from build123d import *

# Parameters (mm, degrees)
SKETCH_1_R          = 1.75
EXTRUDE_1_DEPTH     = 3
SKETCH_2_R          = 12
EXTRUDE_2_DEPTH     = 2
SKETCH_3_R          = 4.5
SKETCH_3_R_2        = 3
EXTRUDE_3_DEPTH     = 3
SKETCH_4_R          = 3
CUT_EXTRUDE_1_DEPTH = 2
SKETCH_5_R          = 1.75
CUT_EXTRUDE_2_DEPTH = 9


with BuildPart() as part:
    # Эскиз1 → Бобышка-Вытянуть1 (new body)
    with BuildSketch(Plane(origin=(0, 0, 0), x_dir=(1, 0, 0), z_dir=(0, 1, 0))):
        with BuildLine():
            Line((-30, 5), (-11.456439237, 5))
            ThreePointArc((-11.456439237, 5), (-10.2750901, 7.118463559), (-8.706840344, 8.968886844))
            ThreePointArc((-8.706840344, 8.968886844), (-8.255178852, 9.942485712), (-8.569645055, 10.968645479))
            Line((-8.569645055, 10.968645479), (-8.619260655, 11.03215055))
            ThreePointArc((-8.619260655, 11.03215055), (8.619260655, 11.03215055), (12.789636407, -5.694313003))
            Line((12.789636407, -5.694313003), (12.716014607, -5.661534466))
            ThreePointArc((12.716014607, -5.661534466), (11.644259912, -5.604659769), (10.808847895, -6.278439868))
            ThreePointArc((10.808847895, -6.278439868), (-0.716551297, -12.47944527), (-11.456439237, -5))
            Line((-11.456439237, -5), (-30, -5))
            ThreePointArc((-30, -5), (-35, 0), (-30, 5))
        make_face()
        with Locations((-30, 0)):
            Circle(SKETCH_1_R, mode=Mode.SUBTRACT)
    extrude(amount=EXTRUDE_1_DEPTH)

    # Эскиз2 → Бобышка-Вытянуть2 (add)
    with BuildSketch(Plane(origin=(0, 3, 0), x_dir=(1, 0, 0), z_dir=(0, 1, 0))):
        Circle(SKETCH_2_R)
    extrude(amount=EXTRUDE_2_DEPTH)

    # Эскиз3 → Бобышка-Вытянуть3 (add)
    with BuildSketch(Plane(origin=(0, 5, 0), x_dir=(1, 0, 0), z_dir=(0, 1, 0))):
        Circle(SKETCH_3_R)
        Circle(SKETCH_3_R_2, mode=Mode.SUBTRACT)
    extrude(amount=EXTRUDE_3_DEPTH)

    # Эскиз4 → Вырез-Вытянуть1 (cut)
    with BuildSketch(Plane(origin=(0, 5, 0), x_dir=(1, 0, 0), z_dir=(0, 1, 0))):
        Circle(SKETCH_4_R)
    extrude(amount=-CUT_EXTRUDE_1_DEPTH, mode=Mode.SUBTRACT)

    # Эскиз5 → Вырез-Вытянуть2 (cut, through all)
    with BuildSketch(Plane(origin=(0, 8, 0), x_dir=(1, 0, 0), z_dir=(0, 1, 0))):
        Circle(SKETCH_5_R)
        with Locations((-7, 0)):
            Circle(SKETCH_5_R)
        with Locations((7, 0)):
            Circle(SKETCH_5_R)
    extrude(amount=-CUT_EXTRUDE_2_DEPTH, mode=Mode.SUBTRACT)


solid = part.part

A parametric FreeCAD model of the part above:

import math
import FreeCAD as App
import Part
import Sketcher

V = App.Vector
Q = App.Units.Quantity

doc = App.newDocument("Part")
body = doc.addObject("PartDesign::Body", "Body")

sketch1 = body.newObject("Sketcher::SketchObject", "Sketch")
sketch1.AttachmentSupport = (doc.getObject("XZ_Plane"), [""])
sketch1.MapMode = "FlatFace"
sketch1.addGeometry([
    Part.LineSegment(V(-11.46, -5, 0), V(-30, -5, 0)),
    Part.ArcOfCircle(Part.Circle(V(-30, 0, 0), V(0, 0, 1), 5), math.radians(90), math.radians(270)),
    Part.LineSegment(V(-30, 5, 0), V(-11.46, 5, 0)),
    Part.ArcOfCircle(Part.Circle(V(0, 0, 0), V(0, 0, 1), 12.5), math.radians(30), math.radians(156)),
    Part.ArcOfCircle(Part.Circle(V(12.11, 7.03, 0), V(0, 0, 1), 1.5), math.radians(-150), math.radians(-66)),
    Part.LineSegment(V(12.72, 5.66, 0), V(12.79, 5.69, 0)),
    Part.ArcOfCircle(Part.Circle(V(0, 0, 0), V(0, 0, 1), 14), math.radians(-128), math.radians(24)),
    Part.LineSegment(V(-8.62, -11.03, 0), V(-8.57, -10.97, 0)),
    Part.ArcOfCircle(Part.Circle(V(-9.75, -10.05, 0), V(0, 0, 1), 1.5), math.radians(-38), math.radians(46)),
    Part.ArcOfCircle(Part.Circle(V(0, 0, 0), V(0, 0, 1), 12.5), math.radians(-156), math.radians(-134)),
    Part.Circle(V(-30, 0, 0), V(0, 0, 1), 1.75),
], False)
sketch1.addConstraint([
    Sketcher.Constraint("Tangent", 0, 2, 1, 2),
    Sketcher.Constraint("Tangent", 1, 1, 2, 1),
    Sketcher.Constraint("Coincident", 2, 2, 3, 2),
    Sketcher.Constraint("Tangent", 3, 1, 4, 1),
    Sketcher.Constraint("Tangent", 4, 2, 5, 1),
    Sketcher.Constraint("Coincident", 5, 2, 6, 2),
    Sketcher.Constraint("Coincident", 6, 1, 7, 1),
    Sketcher.Constraint("Tangent", 7, 2, 8, 1),
    Sketcher.Constraint("Tangent", 8, 2, 9, 2),
    Sketcher.Constraint("Coincident", 9, 1, 0, 1),
    Sketcher.Constraint("Horizontal", 0),
    Sketcher.Constraint("Horizontal", 2),
    Sketcher.Constraint("Coincident", 3, 3, -1, 1),
    Sketcher.Constraint("Coincident", 6, 3, -1, 1),
    Sketcher.Constraint("Coincident", 9, 3, -1, 1),
    Sketcher.Constraint("Coincident", 10, 3, 1, 3),
    Sketcher.Constraint("Equal", 4, 8),
    Sketcher.Constraint("Equal", 3, 9),
    Sketcher.Constraint("PointOnObject", 1, 3, -1),
    Sketcher.Constraint("Equal", 5, 7),
    Sketcher.Constraint("Radius", 1, 5.0),
    Sketcher.Constraint("Radius", 6, 14.0),
    Sketcher.Constraint("Diameter", 10, 3.5),
    Sketcher.Constraint("Radius", 3, 12.5),
    Sketcher.Constraint("Radius", 4, 1.5),
    Sketcher.Constraint("Angle", 5, Q("24 deg")),
    Sketcher.Constraint("Angle", 7, Q("52 deg")),
    Sketcher.Constraint("DistanceX", 1, 3, -1, 1, 30.0),
    Sketcher.Constraint("DistanceX", 8, 3, 6, 1, 1.132401),
])
pad1 = body.newObject("PartDesign::Pad", "Pad")
pad1.Profile = sketch1
pad1.Length = 3
pad1.Reversed = True

sketch2 = body.newObject("Sketcher::SketchObject", "Sketch001")
sketch2.AttachmentSupport = (doc.getObject("XZ_Plane"), [""])
sketch2.MapMode = "FlatFace"
sketch2.AttachmentOffset = App.Placement(V(0, 0, -3), App.Rotation())
sketch2.addGeometry(Part.Circle(V(0, 0, 0), V(0, 0, 1), 12), False)
sketch2.addConstraint([
    Sketcher.Constraint("Coincident", 0, 3, -1, 1),
    Sketcher.Constraint("Diameter", 0, 24.0),
])
pad2 = body.newObject("PartDesign::Pad", "Pad001")
pad2.Profile = sketch2
pad2.Length = 2
pad2.Reversed = True

sketch3 = body.newObject("Sketcher::SketchObject", "Sketch002")
sketch3.AttachmentSupport = (doc.getObject("XZ_Plane"), [""])
sketch3.MapMode = "FlatFace"
sketch3.AttachmentOffset = App.Placement(V(0, 0, -5), App.Rotation())
sketch3.addGeometry([
    Part.Circle(V(0, 0, 0), V(0, 0, 1), 4.5),
    Part.Circle(V(0, 0, 0), V(0, 0, 1), 3),
], False)
sketch3.addConstraint([
    Sketcher.Constraint("Coincident", 0, 3, -1, 1),
    Sketcher.Constraint("Coincident", 1, 3, -1, 1),
    Sketcher.Constraint("Diameter", 0, 9.0),
    Sketcher.Constraint("Diameter", 1, 6.0),
])
pad3 = body.newObject("PartDesign::Pad", "Pad002")
pad3.Profile = sketch3
pad3.Length = 3
pad3.Reversed = True

sketch4 = body.newObject("Sketcher::SketchObject", "Sketch003")
sketch4.AttachmentSupport = (doc.getObject("XZ_Plane"), [""])
sketch4.MapMode = "FlatFace"
sketch4.AttachmentOffset = App.Placement(V(0, 0, -5), App.Rotation())
sketch4.addGeometry(Part.Circle(V(0, 0, 0), V(0, 0, 1), 3), False)
sketch4.addConstraint([
    Sketcher.Constraint("Coincident", 0, 3, -1, 1),
    Sketcher.Constraint("Diameter", 0, 6.0),
])
pocket1 = body.newObject("PartDesign::Pocket", "Pocket")
pocket1.Profile = sketch4
pocket1.Length = 2
pocket1.Reversed = True

sketch5 = body.newObject("Sketcher::SketchObject", "Sketch004")
sketch5.AttachmentSupport = (doc.getObject("XZ_Plane"), [""])
sketch5.MapMode = "FlatFace"
sketch5.AttachmentOffset = App.Placement(V(0, 0, -8), App.Rotation())
sketch5.addGeometry([
    Part.Circle(V(0, 0, 0), V(0, 0, 1), 1.8),
    Part.Circle(V(-7, 0, 0), V(0, 0, 1), 1.8),
    Part.Circle(V(7, 0, 0), V(0, 0, 1), 1.8),
], False)
sketch5.addConstraint([
    Sketcher.Constraint("Coincident", 0, 3, -1, 1),
    Sketcher.Constraint("Equal", 0, 1),
    Sketcher.Constraint("Equal", 1, 2),
    Sketcher.Constraint("Symmetric", 1, 3, 2, 3, -1, 1),
    Sketcher.Constraint("PointOnObject", 1, 3, -1),
    Sketcher.Constraint("Diameter", 0, 3.5),
    Sketcher.Constraint("DistanceX", 1, 3, -1, 1, 7.0),
])
pocket2 = body.newObject("PartDesign::Pocket", "Pocket001")
pocket2.Profile = sketch5
pocket2.Type = "ThroughAll"
pocket2.Reversed = True

doc.recompute()
